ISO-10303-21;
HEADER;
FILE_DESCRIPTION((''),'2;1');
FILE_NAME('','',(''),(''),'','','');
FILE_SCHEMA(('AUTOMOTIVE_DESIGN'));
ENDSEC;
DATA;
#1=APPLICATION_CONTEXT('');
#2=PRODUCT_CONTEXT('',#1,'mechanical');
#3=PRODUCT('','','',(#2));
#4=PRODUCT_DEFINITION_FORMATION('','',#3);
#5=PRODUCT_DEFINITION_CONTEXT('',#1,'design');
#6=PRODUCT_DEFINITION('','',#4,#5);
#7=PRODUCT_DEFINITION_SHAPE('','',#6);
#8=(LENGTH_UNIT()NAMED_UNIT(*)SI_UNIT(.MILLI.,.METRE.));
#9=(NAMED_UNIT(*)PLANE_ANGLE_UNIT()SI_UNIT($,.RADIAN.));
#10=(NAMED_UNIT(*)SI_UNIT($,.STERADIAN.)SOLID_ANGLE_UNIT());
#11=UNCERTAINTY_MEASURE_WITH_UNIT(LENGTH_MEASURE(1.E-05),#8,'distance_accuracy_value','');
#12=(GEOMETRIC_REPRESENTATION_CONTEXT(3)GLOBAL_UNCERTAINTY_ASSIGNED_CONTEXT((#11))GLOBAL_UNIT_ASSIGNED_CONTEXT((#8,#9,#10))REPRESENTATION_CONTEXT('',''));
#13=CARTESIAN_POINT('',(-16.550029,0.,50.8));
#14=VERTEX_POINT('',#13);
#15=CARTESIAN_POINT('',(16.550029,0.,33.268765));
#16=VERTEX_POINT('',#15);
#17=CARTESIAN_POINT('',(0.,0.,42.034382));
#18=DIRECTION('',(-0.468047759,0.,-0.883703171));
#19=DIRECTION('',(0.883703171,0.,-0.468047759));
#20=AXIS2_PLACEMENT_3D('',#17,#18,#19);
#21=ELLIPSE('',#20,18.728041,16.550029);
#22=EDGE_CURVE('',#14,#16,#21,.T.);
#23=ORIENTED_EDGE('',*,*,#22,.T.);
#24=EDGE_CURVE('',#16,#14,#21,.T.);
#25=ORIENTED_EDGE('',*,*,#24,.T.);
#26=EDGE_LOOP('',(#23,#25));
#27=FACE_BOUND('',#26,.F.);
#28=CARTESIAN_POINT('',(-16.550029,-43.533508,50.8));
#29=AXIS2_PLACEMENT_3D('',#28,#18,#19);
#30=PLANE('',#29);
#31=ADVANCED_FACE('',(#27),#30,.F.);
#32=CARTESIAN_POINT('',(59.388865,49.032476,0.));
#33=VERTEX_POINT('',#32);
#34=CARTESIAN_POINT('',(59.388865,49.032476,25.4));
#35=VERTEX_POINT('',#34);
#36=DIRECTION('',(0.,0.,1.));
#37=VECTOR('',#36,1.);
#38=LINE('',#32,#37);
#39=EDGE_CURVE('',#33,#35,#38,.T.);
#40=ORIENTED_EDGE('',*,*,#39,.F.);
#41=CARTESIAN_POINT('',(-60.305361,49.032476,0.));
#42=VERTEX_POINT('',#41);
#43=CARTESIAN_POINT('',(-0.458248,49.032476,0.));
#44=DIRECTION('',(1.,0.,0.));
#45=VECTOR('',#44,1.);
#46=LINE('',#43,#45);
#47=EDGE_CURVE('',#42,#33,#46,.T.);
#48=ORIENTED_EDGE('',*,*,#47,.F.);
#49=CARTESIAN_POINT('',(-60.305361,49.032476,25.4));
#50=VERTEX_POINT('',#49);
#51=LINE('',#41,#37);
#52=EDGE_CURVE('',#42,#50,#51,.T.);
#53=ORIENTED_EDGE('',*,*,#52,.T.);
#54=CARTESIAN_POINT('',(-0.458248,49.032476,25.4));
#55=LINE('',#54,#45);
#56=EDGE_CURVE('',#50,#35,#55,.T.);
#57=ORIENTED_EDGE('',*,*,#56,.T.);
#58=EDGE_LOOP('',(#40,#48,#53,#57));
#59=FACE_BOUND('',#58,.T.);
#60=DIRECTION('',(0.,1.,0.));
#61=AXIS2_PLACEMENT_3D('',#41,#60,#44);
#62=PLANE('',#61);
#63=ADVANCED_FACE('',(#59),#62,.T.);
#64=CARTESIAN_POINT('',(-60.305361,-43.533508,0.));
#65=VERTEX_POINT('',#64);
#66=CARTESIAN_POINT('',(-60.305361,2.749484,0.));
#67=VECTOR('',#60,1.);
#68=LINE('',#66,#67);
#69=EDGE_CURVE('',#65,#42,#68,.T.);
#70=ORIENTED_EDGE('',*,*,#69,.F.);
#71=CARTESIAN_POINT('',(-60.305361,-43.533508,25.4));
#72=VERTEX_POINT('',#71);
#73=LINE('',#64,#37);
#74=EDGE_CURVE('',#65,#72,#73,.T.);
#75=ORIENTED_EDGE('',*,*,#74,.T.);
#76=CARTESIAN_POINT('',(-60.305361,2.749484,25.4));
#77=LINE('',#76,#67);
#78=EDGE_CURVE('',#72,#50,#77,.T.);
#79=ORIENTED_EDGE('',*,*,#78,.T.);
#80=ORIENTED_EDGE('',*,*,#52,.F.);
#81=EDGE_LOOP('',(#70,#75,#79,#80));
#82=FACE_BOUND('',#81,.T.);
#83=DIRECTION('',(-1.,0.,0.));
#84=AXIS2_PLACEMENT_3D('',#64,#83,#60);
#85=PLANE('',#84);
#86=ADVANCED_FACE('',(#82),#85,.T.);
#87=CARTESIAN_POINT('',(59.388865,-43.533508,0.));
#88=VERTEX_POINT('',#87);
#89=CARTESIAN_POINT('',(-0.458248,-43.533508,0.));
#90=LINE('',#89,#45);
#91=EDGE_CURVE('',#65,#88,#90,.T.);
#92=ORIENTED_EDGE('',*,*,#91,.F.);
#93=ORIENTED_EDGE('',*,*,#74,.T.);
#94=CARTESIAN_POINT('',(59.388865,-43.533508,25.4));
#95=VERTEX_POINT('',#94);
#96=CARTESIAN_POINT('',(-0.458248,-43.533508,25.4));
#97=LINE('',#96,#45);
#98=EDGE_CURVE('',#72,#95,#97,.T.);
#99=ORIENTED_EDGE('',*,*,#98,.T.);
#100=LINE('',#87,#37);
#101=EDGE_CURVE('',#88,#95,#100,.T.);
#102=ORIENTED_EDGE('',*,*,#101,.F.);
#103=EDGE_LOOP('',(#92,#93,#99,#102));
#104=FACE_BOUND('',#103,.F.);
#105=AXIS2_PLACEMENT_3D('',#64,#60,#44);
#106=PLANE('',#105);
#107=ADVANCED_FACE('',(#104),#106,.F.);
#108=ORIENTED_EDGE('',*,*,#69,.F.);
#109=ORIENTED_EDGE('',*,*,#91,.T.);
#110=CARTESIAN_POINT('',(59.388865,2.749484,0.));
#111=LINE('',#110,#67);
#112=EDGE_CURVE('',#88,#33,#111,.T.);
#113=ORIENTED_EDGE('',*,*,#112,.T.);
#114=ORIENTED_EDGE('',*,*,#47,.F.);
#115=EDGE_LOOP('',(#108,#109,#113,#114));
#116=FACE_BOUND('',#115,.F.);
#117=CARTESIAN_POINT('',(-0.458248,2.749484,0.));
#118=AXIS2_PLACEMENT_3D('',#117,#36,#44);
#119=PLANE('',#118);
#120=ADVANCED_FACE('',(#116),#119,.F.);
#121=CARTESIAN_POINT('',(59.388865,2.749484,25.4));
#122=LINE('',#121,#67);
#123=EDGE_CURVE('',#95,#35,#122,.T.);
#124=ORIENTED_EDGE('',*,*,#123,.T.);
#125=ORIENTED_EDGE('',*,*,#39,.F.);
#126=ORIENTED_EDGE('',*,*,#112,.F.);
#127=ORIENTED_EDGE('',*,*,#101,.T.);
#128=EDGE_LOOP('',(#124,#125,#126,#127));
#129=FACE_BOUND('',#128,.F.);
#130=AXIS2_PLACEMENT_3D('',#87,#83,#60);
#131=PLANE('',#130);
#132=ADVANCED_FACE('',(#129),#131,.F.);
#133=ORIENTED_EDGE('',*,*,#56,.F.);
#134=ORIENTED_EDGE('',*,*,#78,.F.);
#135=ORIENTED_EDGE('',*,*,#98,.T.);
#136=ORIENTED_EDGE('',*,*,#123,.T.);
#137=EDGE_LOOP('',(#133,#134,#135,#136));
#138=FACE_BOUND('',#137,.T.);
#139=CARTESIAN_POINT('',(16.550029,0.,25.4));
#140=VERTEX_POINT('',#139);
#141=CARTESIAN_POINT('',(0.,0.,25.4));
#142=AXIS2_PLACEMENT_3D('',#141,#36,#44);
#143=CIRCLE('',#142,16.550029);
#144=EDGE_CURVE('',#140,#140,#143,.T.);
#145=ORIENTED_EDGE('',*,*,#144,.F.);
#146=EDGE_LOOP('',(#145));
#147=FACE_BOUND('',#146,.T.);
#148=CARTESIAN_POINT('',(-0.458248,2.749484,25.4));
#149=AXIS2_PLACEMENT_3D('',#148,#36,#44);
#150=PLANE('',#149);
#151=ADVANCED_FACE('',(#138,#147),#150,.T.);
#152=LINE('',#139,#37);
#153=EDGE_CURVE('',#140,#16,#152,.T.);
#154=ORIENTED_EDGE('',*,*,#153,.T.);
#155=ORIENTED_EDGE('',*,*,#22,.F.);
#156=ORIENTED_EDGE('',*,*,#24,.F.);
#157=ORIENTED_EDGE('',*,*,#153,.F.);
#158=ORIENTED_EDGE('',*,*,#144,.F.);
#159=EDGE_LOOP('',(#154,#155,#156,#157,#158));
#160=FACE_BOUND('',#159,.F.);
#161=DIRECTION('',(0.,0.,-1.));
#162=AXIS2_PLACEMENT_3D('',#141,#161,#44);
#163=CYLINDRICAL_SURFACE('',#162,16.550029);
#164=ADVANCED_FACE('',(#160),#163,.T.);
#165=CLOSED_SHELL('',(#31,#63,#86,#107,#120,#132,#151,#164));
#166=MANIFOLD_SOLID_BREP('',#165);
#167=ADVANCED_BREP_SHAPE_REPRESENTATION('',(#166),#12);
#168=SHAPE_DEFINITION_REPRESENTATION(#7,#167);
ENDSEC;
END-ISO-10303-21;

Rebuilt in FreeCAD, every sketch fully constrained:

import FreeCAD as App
import Part
import Sketcher
Q = App.Units.Quantity

doc = App.newDocument("Part")
params = doc.addObject("Spreadsheet::Sheet", "Params")
for row, (alias, value) in enumerate([
    ("pad1_length", "1 in"),
    ("pad2_length", "1 in"),
], start=1):
    params.set(f"A{row}", alias)
    params.set(f"B{row}", "=" + value)
    params.setAlias(f"B{row}", alias)

body = doc.addObject("PartDesign::Body", "Body")

sketch1 = body.newObject("Sketcher::SketchObject", "Sketch")
sketch1.AttachmentSupport = (doc.getObject("XY_Plane"), [""])
sketch1.MapMode = "FlatFace"
sketch1.addGeometry([
    Part.LineSegment(App.Vector(-60, 49, 0), App.Vector(-60, -44, 0)),
    Part.LineSegment(App.Vector(-60, -44, 0), App.Vector(59, -44, 0)),
    Part.LineSegment(App.Vector(59, -44, 0), App.Vector(59, 49, 0)),
    Part.LineSegment(App.Vector(59, 49, 0), App.Vector(-60, 49, 0)),
], False)
sketch1.addConstraint([
    Sketcher.Constraint("Coincident", 0, 2, 1, 1),
    Sketcher.Constraint("Coincident", 1, 2, 2, 1),
    Sketcher.Constraint("Coincident", 2, 2, 3, 1),
    Sketcher.Constraint("Coincident", 3, 2, 0, 1),
    Sketcher.Constraint("Vertical", 0),
    Sketcher.Constraint("Horizontal", 1),
    Sketcher.Constraint("Vertical", 2),
    Sketcher.Constraint("Horizontal", 3),
    Sketcher.Constraint("DistanceX", 1, 1, 1, 2, Q("119.694226 mm")),
    Sketcher.Constraint("DistanceY", 0, 2, 0, 1, Q("92.565984 mm")),
    Sketcher.Constraint("DistanceX", 0, 2, -1, 1, Q("60.305361 mm")),
    Sketcher.Constraint("DistanceY", 0, 2, -1, 1, Q("43.533508 mm")),
])
pad1 = body.newObject("PartDesign::Pad", "Pad")
pad1.Profile = sketch1
pad1.setExpression("Length", "Params.pad1_length")

sketch2 = body.newObject("Sketcher::SketchObject", "Sketch001")
sketch2.AttachmentSupport = (doc.getObject("XY_Plane"), [""])
sketch2.MapMode = "FlatFace"
sketch2.AttachmentOffset = App.Placement(App.Vector(0, 0, 1 * 25.4), App.Rotation())
sketch2.addGeometry(Part.Circle(App.Vector(0, 0, 0), App.Vector(0, 0, 1), 17), False)
sketch2.addConstraint([
    Sketcher.Constraint("Coincident", 0, 3, -1, 1),
    Sketcher.Constraint("Diameter", 0, Q("33.100058 mm")),
])
pad2 = body.newObject("PartDesign::Pad", "Pad001")
pad2.Profile = sketch2
pad2.setExpression("Length", "Params.pad2_length")

sketch3 = body.newObject("Sketcher::SketchObject", "Sketch002")
sketch3.AttachmentSupport = (doc.getObject("XZ_Plane"), [""])
sketch3.MapMode = "FlatFace"
sketch3.AttachmentOffset = App.Placement(App.Vector(0, 0, 43.533508), App.Rotation())
sketch3.addGeometry([
    Part.LineSegment(App.Vector(17, 51, 0), App.Vector(-17, 51, 0)),
    Part.LineSegment(App.Vector(-17, 51, 0), App.Vector(17, 33, 0)),
    Part.LineSegment(App.Vector(17, 33, 0), App.Vector(17, 51, 0)),
], False)
sketch3.addConstraint([
    Sketcher.Constraint("Coincident", 0, 2, 1, 1),
    Sketcher.Constraint("Coincident", 1, 2, 2, 1),
    Sketcher.Constraint("Coincident", 2, 2, 0, 1),
    Sketcher.Constraint("Horizontal", 0),
    Sketcher.Constraint("Vertical", 2),
    Sketcher.Constraint("DistanceY", -1, 1, 0, 2, Q("2 in")),
    Sketcher.Constraint("Distance", 1, Q("37.456081 mm")),
    Sketcher.Constraint("DistanceX", 0, 2, 0, 1, Q("33.100058 mm")),
    Sketcher.Constraint("DistanceX", 0, 2, -1, 1, Q("16.550029 mm")),
])
pocket1 = body.newObject("PartDesign::Pocket", "Pocket")
pocket1.Profile = sketch3
pocket1.Type = "ThroughAll"

doc.recompute()
